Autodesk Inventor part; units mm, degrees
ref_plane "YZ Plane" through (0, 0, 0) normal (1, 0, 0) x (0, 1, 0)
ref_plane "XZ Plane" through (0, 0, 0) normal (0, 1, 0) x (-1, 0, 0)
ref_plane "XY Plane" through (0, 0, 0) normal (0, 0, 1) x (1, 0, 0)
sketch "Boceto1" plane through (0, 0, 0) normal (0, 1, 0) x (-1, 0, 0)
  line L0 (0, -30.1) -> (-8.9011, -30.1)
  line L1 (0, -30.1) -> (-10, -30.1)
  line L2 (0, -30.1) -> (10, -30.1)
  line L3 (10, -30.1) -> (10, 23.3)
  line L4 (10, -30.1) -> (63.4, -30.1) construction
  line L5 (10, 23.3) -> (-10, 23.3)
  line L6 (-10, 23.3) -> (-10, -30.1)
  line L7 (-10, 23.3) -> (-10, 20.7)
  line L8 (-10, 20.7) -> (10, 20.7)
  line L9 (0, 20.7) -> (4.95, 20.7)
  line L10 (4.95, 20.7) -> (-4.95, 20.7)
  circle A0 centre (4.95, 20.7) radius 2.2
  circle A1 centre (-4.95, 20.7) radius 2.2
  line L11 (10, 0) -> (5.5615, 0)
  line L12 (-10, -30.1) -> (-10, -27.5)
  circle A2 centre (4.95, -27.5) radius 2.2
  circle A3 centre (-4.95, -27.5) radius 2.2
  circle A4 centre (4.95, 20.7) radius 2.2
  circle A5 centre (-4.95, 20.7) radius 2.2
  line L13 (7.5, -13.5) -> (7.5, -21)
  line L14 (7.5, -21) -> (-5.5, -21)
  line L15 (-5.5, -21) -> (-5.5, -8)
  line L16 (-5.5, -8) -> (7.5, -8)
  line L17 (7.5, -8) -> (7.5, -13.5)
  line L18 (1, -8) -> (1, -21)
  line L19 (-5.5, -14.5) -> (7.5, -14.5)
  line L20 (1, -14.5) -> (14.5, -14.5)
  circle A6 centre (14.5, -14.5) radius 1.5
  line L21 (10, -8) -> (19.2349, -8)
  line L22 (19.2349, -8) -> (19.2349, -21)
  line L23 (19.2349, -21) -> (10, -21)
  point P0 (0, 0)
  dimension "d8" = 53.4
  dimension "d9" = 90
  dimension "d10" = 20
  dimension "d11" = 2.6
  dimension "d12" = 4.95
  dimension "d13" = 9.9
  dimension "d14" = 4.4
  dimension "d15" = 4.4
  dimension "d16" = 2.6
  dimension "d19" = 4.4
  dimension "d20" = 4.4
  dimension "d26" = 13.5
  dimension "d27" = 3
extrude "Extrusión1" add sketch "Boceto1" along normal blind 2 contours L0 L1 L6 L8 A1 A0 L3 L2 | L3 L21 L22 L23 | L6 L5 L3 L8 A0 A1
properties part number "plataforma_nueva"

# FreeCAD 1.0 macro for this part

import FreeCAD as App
import Part
import Sketcher
Q = App.Units.Quantity

doc = App.newDocument("Part")
body = doc.addObject("PartDesign::Body", "Body")

# Sketch on XZ plane
sketch1 = body.newObject("Sketcher::SketchObject", "Sketch")
sketch1.AttachmentSupport = (doc.getObject("XZ_Plane"), [""])
sketch1.MapMode = "FlatFace"
sketch1.addGeometry(Part.LineSegment(App.Vector(-10, -30.1, 0), App.Vector(-10, -21, 0)), False)
sketch1.addGeometry(Part.LineSegment(App.Vector(-10, -21, 0), App.Vector(-19.2, -21, 0)), False)
sketch1.addGeometry(Part.LineSegment(App.Vector(-19.2, -21, 0), App.Vector(-19.2, -8, 0)), False)
sketch1.addGeometry(Part.LineSegment(App.Vector(-19.2, -8, 0), App.Vector(-10, -8, 0)), False)
sketch1.addGeometry(Part.LineSegment(App.Vector(-10, -8, 0), App.Vector(-10, 23.3, 0)), False)
sketch1.addGeometry(Part.LineSegment(App.Vector(-10, 23.3, 0), App.Vector(10, 23.3, 0)), False)
sketch1.addGeometry(Part.LineSegment(App.Vector(10, 23.3, 0), App.Vector(10, -30.1, 0)), False)
sketch1.addGeometry(Part.LineSegment(App.Vector(10, -30.1, 0), App.Vector(-10, -30.1, 0)), False)
sketch1.addGeometry(Part.Circle(App.Vector(5, 20.7, 0), App.Vector(0, 0, 1), 2.2), False)
sketch1.addGeometry(Part.Circle(App.Vector(-5, 20.7, 0), App.Vector(0, 0, 1), 2.2), False)
sketch1.addGeometry(Part.Circle(App.Vector(5, -27.5, 0), App.Vector(0, 0, 1), 2.2), False)
sketch1.addGeometry(Part.LineSegment(App.Vector(-7.5, -14.5, 0), App.Vector(-7.5, -21, 0)), False)
sketch1.addGeometry(Part.LineSegment(App.Vector(-7.5, -21, 0), App.Vector(5.5, -21, 0)), False)
sketch1.addGeometry(Part.LineSegment(App.Vector(5.5, -21, 0), App.Vector(5.5, -8, 0)), False)
sketch1.addGeometry(Part.LineSegment(App.Vector(5.5, -8, 0), App.Vector(-7.5, -8, 0)), False)
sketch1.addGeometry(Part.LineSegment(App.Vector(-7.5, -8, 0), App.Vector(-7.5, -14.5, 0)), False)
sketch1.addGeometry(Part.Circle(App.Vector(-5, -27.5, 0), App.Vector(0, 0, 1), 2.2), False)
sketch1.addGeometry(Part.Circle(App.Vector(-14.5, -14.5, 0), App.Vector(0, 0, 1), 1.5), False)
sketch1.addConstraint(Sketcher.Constraint("Coincident", 0, 2, 1, 1))
sketch1.addConstraint(Sketcher.Constraint("Coincident", 1, 2, 2, 1))
sketch1.addConstraint(Sketcher.Constraint("Coincident", 2, 2, 3, 1))
sketch1.addConstraint(Sketcher.Constraint("Coincident", 3, 2, 4, 1))
sketch1.addConstraint(Sketcher.Constraint("Coincident", 4, 2, 5, 1))
sketch1.addConstraint(Sketcher.Constraint("Coincident", 5, 2, 6, 1))
sketch1.addConstraint(Sketcher.Constraint("Coincident", 6, 2, 7, 1))
sketch1.addConstraint(Sketcher.Constraint("Coincident", 7, 2, 0, 1))
sketch1.addConstraint(Sketcher.Constraint("Coincident", 11, 2, 12, 1))
sketch1.addConstraint(Sketcher.Constraint("Coincident", 12, 2, 13, 1))
sketch1.addConstraint(Sketcher.Constraint("Coincident", 13, 2, 14, 1))
sketch1.addConstraint(Sketcher.Constraint("Coincident", 14, 2, 15, 1))
sketch1.addConstraint(Sketcher.Constraint("Coincident", 15, 2, 11, 1))
sketch1.addConstraint(Sketcher.Constraint("Vertical", 0))
sketch1.addConstraint(Sketcher.Constraint("Horizontal", 1))
sketch1.addConstraint(Sketcher.Constraint("Vertical", 2))
sketch1.addConstraint(Sketcher.Constraint("Horizontal", 3))
sketch1.addConstraint(Sketcher.Constraint("Vertical", 4))
sketch1.addConstraint(Sketcher.Constraint("Horizontal", 5))
sketch1.addConstraint(Sketcher.Constraint("Vertical", 6))
sketch1.addConstraint(Sketcher.Constraint("Horizontal", 7))
sketch1.addConstraint(Sketcher.Constraint("Vertical", 11))
sketch1.addConstraint(Sketcher.Constraint("Horizontal", 12))
sketch1.addConstraint(Sketcher.Constraint("Vertical", 13))
sketch1.addConstraint(Sketcher.Constraint("Horizontal", 14))
sketch1.addConstraint(Sketcher.Constraint("Vertical", 15))
sketch1.addConstraint(Sketcher.Constraint("Equal", 8, 9))
sketch1.addConstraint(Sketcher.Constraint("Equal", 9, 10))
sketch1.addConstraint(Sketcher.Constraint("Equal", 10, 16))
sketch1.addConstraint(Sketcher.Constraint("Symmetric", 8, 3, 9, 3, -2))
sketch1.addConstraint(Sketcher.Constraint("Symmetric", 10, 3, 16, 3, -2))
sketch1.addConstraint(Sketcher.Constraint("Horizontal", 1, 2, 11, 2))
sketch1.addConstraint(Sketcher.Constraint("Horizontal", 3, 2, 13, 2))
sketch1.addConstraint(Sketcher.Constraint("Horizontal", 17, 3, 15, 2))
sketch1.addConstraint(Sketcher.Constraint("Vertical", 8, 3, 10, 3))
sketch1.addConstraint(Sketcher.Constraint("Vertical", 0, 2, 3, 2))
sketch1.addConstraint(Sketcher.Constraint("Equal", 14, 2))
sketch1.addConstraint(Sketcher.Constraint("Equal", 11, 15))
sketch1.addConstraint(Sketcher.Constraint("Diameter", 17, Q("3 mm")))
sketch1.addConstraint(Sketcher.Constraint("Diameter", 8, Q("4.4 mm")))
sketch1.addConstraint(Sketcher.Constraint("DistanceX", 5, 1, 5, 2, Q("20 mm")))
sketch1.addConstraint(Sketcher.Constraint("DistanceY", 6, 2, 6, 1, Q("53.4 mm")))
sketch1.addConstraint(Sketcher.Constraint("DistanceX", 9, 3, 8, 3, Q("9.9 mm")))
sketch1.addConstraint(Sketcher.Constraint("DistanceY", 9, 3, 4, 2, Q("2.6 mm")))
sketch1.addConstraint(Sketcher.Constraint("DistanceY", 6, 2, 10, 3, Q("2.6 mm")))
sketch1.addConstraint(Sketcher.Constraint("DistanceX", 12, 1, 12, 2, Q("13 mm")))
sketch1.addConstraint(Sketcher.Constraint("DistanceY", 0, 1, 0, 2, Q("9.1 mm")))
sketch1.addConstraint(Sketcher.Constraint("DistanceX", 0, 2, -1, 1, Q("10 mm")))
sketch1.addConstraint(Sketcher.Constraint("DistanceY", 0, 2, -1, 1, Q("21 mm")))
sketch1.addConstraint(Sketcher.Constraint("DistanceX", 17, 3, 11, 2, Q("7 mm")))
sketch1.addConstraint(Sketcher.Constraint("DistanceX", 17, 3, -1, 1, Q("14.5 mm")))
sketch1.addConstraint(Sketcher.Constraint("DistanceX", 1, 2, 1, 1, Q("9.235 mm")))
pad1 = body.newObject("PartDesign::Pad", "Pad")
pad1.Profile = sketch1
pad1.Length = 2
pad1.Reversed = True

doc.recompute()
